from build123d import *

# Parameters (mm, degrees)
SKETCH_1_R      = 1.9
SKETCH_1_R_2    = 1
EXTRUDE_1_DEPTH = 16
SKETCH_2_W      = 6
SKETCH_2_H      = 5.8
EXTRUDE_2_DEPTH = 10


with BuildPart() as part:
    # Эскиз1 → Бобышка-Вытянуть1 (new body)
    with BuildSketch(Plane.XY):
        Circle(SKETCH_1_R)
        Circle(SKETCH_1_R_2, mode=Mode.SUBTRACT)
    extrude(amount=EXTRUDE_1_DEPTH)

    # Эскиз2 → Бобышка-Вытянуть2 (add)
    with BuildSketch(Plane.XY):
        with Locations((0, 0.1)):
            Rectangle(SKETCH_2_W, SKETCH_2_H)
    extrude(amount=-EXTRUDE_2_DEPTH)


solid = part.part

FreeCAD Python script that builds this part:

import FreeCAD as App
import Part
import Sketcher

V = App.Vector
Q = App.Units.Quantity


def add_polygon(sketch, points):
    """Adds a closed chain of lines whose ends are joined by coincident constraints."""
    first, n = sketch.GeometryCount, len(points)
    for a, b in zip(points, points[1:] + points[:1]):
        sketch.addGeometry(Part.LineSegment(App.Vector(*a, 0), App.Vector(*b, 0)), False)
    for i in range(n):
        sketch.addConstraint(Sketcher.Constraint("Coincident", first + i, 2, first + (i + 1) % n, 1))

doc = App.newDocument("Part")
body = doc.addObject("PartDesign::Body", "Body")

sketch1 = body.newObject("Sketcher::SketchObject", "Sketch")
sketch1.AttachmentSupport = (doc.getObject("XY_Plane"), [""])
sketch1.MapMode = "FlatFace"
sketch1.addGeometry(Part.Circle(V(0, 0, 0), V(0, 0, 1), 1.9), False)
sketch1.addGeometry(Part.Circle(V(0, 0, 0), V(0, 0, 1), 1), False)
sketch1.addConstraint(Sketcher.Constraint("Coincident", 0, 3, -1, 1))
sketch1.addConstraint(Sketcher.Constraint("Coincident", 1, 3, -1, 1))
sketch1.addConstraint(Sketcher.Constraint("Diameter", 1, Q("2 mm")))
sketch1.addConstraint(Sketcher.Constraint("Diameter", 0, Q("3.8 mm")))
pad1 = body.newObject("PartDesign::Pad", "Pad")
pad1.Profile = sketch1
pad1.Length = 16

sketch2 = body.newObject("Sketcher::SketchObject", "Sketch001")
sketch2.AttachmentSupport = (doc.getObject("XY_Plane"), [""])
sketch2.MapMode = "FlatFace"
add_polygon(sketch2, [(-3, 3), (-3, -2.8), (3, -2.8), (3, 3)])
sketch2.addConstraint(Sketcher.Constraint("Vertical", 0))
sketch2.addConstraint(Sketcher.Constraint("Horizontal", 1))
sketch2.addConstraint(Sketcher.Constraint("Vertical", 2))
sketch2.addConstraint(Sketcher.Constraint("Horizontal", 3))
sketch2.addConstraint(Sketcher.Constraint("DistanceX", 1, 1, 1, 2, Q("6 mm")))
sketch2.addConstraint(Sketcher.Constraint("DistanceY", 0, 2, 0, 1, Q("5.8 mm")))
sketch2.addConstraint(Sketcher.Constraint("DistanceX", 0, 2, -1, 1, Q("3 mm")))
sketch2.addConstraint(Sketcher.Constraint("DistanceY", -1, 1, 2, 2, Q("3 mm")))
pad2 = body.newObject("PartDesign::Pad", "Pad001")
pad2.Profile = sketch2
pad2.Length = 10
pad2.Reversed = True

doc.recompute()
